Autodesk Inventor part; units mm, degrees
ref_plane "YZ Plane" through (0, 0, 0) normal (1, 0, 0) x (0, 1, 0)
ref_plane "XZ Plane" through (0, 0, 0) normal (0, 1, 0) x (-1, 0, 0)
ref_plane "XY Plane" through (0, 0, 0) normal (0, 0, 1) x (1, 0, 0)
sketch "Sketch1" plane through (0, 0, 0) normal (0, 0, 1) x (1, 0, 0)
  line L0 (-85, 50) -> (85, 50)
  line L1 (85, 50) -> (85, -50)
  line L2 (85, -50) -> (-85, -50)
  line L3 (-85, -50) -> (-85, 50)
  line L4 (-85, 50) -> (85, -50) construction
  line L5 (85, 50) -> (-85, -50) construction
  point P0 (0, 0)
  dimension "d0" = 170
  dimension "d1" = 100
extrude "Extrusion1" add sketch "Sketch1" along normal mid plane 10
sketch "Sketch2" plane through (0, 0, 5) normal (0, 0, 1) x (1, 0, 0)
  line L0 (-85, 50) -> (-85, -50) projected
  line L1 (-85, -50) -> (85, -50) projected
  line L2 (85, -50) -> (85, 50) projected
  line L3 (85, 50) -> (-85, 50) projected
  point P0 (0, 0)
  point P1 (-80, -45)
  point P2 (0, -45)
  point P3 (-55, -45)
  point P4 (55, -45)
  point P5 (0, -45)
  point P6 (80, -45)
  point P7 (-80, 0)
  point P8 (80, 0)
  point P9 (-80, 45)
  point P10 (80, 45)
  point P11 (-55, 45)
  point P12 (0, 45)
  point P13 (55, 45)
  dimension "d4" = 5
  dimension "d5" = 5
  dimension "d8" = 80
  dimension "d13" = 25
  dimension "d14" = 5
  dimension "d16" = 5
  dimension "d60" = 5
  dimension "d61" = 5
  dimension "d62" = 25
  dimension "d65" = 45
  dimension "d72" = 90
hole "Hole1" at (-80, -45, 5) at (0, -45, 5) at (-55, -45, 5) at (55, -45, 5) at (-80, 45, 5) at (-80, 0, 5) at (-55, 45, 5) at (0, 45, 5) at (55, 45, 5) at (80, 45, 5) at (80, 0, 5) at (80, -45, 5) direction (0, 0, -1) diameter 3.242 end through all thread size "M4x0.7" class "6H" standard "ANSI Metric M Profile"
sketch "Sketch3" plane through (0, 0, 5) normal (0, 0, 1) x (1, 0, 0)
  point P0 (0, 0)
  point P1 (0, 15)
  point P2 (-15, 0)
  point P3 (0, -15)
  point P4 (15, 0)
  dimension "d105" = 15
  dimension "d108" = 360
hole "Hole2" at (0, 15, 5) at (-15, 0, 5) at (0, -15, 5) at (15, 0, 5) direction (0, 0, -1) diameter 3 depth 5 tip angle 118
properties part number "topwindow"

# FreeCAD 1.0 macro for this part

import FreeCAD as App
import Part
import Sketcher

V = App.Vector
Q = App.Units.Quantity

doc = App.newDocument("Part")
body = doc.addObject("PartDesign::Body", "Body")

sketch1 = doc.addObject("Sketcher::SketchObject", "Sketch")
body.addObject(sketch1)
sketch1.AttachmentSupport = (doc.XY_Plane, [""])
sketch1.MapMode = "FlatFace"
sketch1.addGeometry(Part.LineSegment(V(85, 50, 0), V(-85, 50, 0)), False)
sketch1.addGeometry(Part.LineSegment(V(-85, 50, 0), V(-85, -50, 0)), False)
sketch1.addGeometry(Part.LineSegment(V(-85, -50, 0), V(85, -50, 0)), False)
sketch1.addGeometry(Part.LineSegment(V(85, -50, 0), V(85, 50, 0)), False)
sketch1.addConstraint(Sketcher.Constraint("Coincident", 0, 2, 1, 1))
sketch1.addConstraint(Sketcher.Constraint("Coincident", 1, 2, 2, 1))
sketch1.addConstraint(Sketcher.Constraint("Coincident", 2, 2, 3, 1))
sketch1.addConstraint(Sketcher.Constraint("Coincident", 3, 2, 0, 1))
sketch1.addConstraint(Sketcher.Constraint("Horizontal", 0))
sketch1.addConstraint(Sketcher.Constraint("Vertical", 1))
sketch1.addConstraint(Sketcher.Constraint("Horizontal", 2))
sketch1.addConstraint(Sketcher.Constraint("Vertical", 3))
sketch1.addConstraint(Sketcher.Constraint("Symmetric", 0, 2, 2, 2, -1, 1))
sketch1.addConstraint(Sketcher.Constraint("DistanceX", 0, 2, 0, 1, Q("170 mm")))
sketch1.addConstraint(Sketcher.Constraint("DistanceY", 1, 2, 1, 1, Q("100 mm")))
pad1 = doc.addObject("PartDesign::Pad", "Pad")
body.addObject(pad1)
pad1.Profile = sketch1
pad1.Length = 10
pad1.Midplane = True

sketch2 = doc.addObject("Sketcher::SketchObject", "Sketch001")
body.addObject(sketch2)
sketch2.AttachmentSupport = (doc.XY_Plane, [""])
sketch2.MapMode = "FlatFace"
sketch2.AttachmentOffset = App.Placement(V(0, 0, 5), App.Rotation())
sketch2.addGeometry(Part.Circle(V(-80, -45, 0), V(0, 0, 1), 1.6), False)
sketch2.addGeometry(Part.Circle(V(0, -45, 0), V(0, 0, 1), 1.6), False)
sketch2.addGeometry(Part.Circle(V(-55, -45, 0), V(0, 0, 1), 1.6), False)
sketch2.addGeometry(Part.Circle(V(55, -45, 0), V(0, 0, 1), 1.6), False)
sketch2.addGeometry(Part.Circle(V(-80, 45, 0), V(0, 0, 1), 1.6), False)
sketch2.addGeometry(Part.Circle(V(-80, 0, 0), V(0, 0, 1), 1.6), False)
sketch2.addGeometry(Part.Circle(V(-55, 45, 0), V(0, 0, 1), 1.6), False)
sketch2.addGeometry(Part.Circle(V(0, 45, 0), V(0, 0, 1), 1.6), False)
sketch2.addGeometry(Part.Circle(V(55, 45, 0), V(0, 0, 1), 1.6), False)
sketch2.addGeometry(Part.Circle(V(80, 45, 0), V(0, 0, 1), 1.6), False)
sketch2.addGeometry(Part.Circle(V(80, 0, 0), V(0, 0, 1), 1.6), False)
sketch2.addGeometry(Part.Circle(V(80, -45, 0), V(0, 0, 1), 1.6), False)
sketch2.addConstraint(Sketcher.Constraint("Equal", 0, 1))
sketch2.addConstraint(Sketcher.Constraint("Equal", 1, 2))
sketch2.addConstraint(Sketcher.Constraint("Equal", 2, 3))
sketch2.addConstraint(Sketcher.Constraint("Equal", 3, 4))
sketch2.addConstraint(Sketcher.Constraint("Equal", 4, 5))
sketch2.addConstraint(Sketcher.Constraint("Equal", 5, 6))
sketch2.addConstraint(Sketcher.Constraint("Equal", 6, 7))
sketch2.addConstraint(Sketcher.Constraint("Equal", 7, 8))
sketch2.addConstraint(Sketcher.Constraint("Equal", 8, 9))
sketch2.addConstraint(Sketcher.Constraint("Equal", 9, 10))
sketch2.addConstraint(Sketcher.Constraint("Equal", 10, 11))
sketch2.addConstraint(Sketcher.Constraint("Symmetric", 3, 3, 6, 3, -1, 1))
sketch2.addConstraint(Sketcher.Constraint("Symmetric", 1, 3, 7, 3, -1, 1))
sketch2.addConstraint(Sketcher.Constraint("Symmetric", 2, 3, 8, 3, -1, 1))
sketch2.addConstraint(Sketcher.Constraint("Symmetric", 0, 3, 9, 3, -1, 1))
sketch2.addConstraint(Sketcher.Constraint("Symmetric", 5, 3, 10, 3, -1, 1))
sketch2.addConstraint(Sketcher.Constraint("Symmetric", 4, 3, 11, 3, -1, 1))
sketch2.addConstraint(Sketcher.Constraint("Symmetric", 2, 3, 3, 3, -2))
sketch2.addConstraint(Sketcher.Constraint("Symmetric", 4, 3, 9, 3, -2))
sketch2.addConstraint(Sketcher.Constraint("PointOnObject", 1, 3, -2))
sketch2.addConstraint(Sketcher.Constraint("PointOnObject", 5, 3, -1))
sketch2.addConstraint(Sketcher.Constraint("Horizontal", 0, 3, 1, 3))
sketch2.addConstraint(Sketcher.Constraint("Horizontal", 1, 3, 2, 3))
sketch2.addConstraint(Sketcher.Constraint("Vertical", 4, 3, 5, 3))
sketch2.addConstraint(Sketcher.Constraint("Diameter", 0, Q("3.242 mm")))
sketch2.addConstraint(Sketcher.Constraint("DistanceX", 0, 3, -1, 1, Q("80 mm")))
sketch2.addConstraint(Sketcher.Constraint("DistanceY", 0, 3, -1, 1, Q("45 mm")))
sketch2.addConstraint(Sketcher.Constraint("DistanceX", 2, 3, -1, 1, Q("55 mm")))
doc.recompute()
hole = doc.addObject("PartDesign::Hole", "Hole")
body.addObject(hole)
hole.Profile = sketch2
hole.ThreadType = "None"
hole.Diameter = 3.242
hole.DepthType = "ThroughAll"

sketch3 = doc.addObject("Sketcher::SketchObject", "Sketch002")
body.addObject(sketch3)
sketch3.AttachmentSupport = (doc.XY_Plane, [""])
sketch3.MapMode = "FlatFace"
sketch3.AttachmentOffset = App.Placement(V(0, 0, 5), App.Rotation())
sketch3.addGeometry(Part.Circle(V(0, 15, 0), V(0, 0, 1), 1.5), False)
sketch3.addGeometry(Part.Circle(V(-15, 0, 0), V(0, 0, 1), 1.5), False)
sketch3.addGeometry(Part.Circle(V(0, -15, 0), V(0, 0, 1), 1.5), False)
sketch3.addGeometry(Part.Circle(V(15, 0, 0), V(0, 0, 1), 1.5), False)
sketch3.addConstraint(Sketcher.Constraint("Equal", 0, 1))
sketch3.addConstraint(Sketcher.Constraint("Equal", 1, 2))
sketch3.addConstraint(Sketcher.Constraint("Equal", 2, 3))
sketch3.addConstraint(Sketcher.Constraint("Symmetric", 0, 3, 2, 3, -1, 1))
sketch3.addConstraint(Sketcher.Constraint("Symmetric", 1, 3, 3, 3, -1, 1))
sketch3.addConstraint(Sketcher.Constraint("PointOnObject", 0, 3, -2))
sketch3.addConstraint(Sketcher.Constraint("PointOnObject", 1, 3, -1))
sketch3.addConstraint(Sketcher.Constraint("Diameter", 0, Q("3 mm")))
sketch3.addConstraint(Sketcher.Constraint("DistanceY", -1, 1, 0, 3, Q("15 mm")))
sketch3.addConstraint(Sketcher.Constraint("DistanceX", 1, 3, -1, 1, Q("15 mm")))
doc.recompute()
hole2 = doc.addObject("PartDesign::Hole", "Hole001")
body.addObject(hole2)
hole2.Profile = sketch3
hole2.ThreadType = "None"
hole2.Diameter = 3
hole2.DepthType = "Dimension"
hole2.Depth = 5
hole2.DrillPoint = "Angled"
hole2.DrillPointAngle = 118

doc.recompute()
